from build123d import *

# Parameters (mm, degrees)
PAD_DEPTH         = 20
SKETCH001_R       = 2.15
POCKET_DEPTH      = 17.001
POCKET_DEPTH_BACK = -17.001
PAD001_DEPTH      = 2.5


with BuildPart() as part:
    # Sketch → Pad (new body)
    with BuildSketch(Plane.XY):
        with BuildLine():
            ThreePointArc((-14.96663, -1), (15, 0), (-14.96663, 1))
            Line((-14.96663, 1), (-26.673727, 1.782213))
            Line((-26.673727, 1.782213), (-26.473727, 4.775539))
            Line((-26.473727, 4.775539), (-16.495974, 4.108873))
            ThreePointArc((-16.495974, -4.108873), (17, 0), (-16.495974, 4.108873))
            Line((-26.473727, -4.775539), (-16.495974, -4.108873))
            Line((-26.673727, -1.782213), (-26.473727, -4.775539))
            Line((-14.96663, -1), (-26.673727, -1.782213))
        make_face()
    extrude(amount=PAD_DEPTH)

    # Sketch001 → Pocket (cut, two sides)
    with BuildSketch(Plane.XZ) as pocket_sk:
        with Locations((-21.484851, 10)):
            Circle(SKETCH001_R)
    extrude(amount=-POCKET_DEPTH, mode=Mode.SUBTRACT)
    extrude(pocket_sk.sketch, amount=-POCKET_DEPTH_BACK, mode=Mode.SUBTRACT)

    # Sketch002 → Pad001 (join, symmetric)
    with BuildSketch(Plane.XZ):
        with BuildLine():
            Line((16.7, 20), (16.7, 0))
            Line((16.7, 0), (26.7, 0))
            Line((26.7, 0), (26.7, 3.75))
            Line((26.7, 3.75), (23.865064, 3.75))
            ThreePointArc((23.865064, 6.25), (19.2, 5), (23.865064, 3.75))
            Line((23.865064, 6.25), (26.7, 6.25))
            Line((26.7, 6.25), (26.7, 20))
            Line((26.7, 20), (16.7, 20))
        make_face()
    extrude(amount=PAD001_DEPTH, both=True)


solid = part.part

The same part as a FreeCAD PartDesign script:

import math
import FreeCAD as App
import Part
import Sketcher
Q = App.Units.Quantity

doc = App.newDocument("Part")
body = doc.addObject("PartDesign::Body", "Body")

# Sketch on XY plane
sketch1 = body.newObject("Sketcher::SketchObject", "Sketch")
sketch1.AttachmentSupport = (doc.getObject("XY_Plane"), [""])
sketch1.MapMode = "FlatFace"
sketch1.addGeometry([
    Part.ArcOfCircle(Part.Circle(App.Vector(0, 0, 0), App.Vector(0, 0, 1), 15), math.radians(-176), math.radians(176)),  # 0
    Part.LineSegment(App.Vector(-15, -1, 0), App.Vector(-26.7, -1.8, 0)),  # 1
    Part.LineSegment(App.Vector(-26.7, -1.8, 0), App.Vector(-26.5, -4.8, 0)),  # 2
    Part.LineSegment(App.Vector(-26.5, -4.8, 0), App.Vector(-16.5, -4.1, 0)),  # 3
    Part.ArcOfCircle(Part.Circle(App.Vector(0, 0, 0), App.Vector(0, 0, 1), 17), math.radians(-166), math.radians(166)),  # 4
    Part.LineSegment(App.Vector(-16.5, 4.1, 0), App.Vector(-26.5, 4.8, 0)),  # 5
    Part.LineSegment(App.Vector(-26.5, 4.8, 0), App.Vector(-26.7, 1.8, 0)),  # 6
    Part.LineSegment(App.Vector(-26.7, 1.8, 0), App.Vector(-15, 1, 0)),  # 7
], False)
sketch1.addConstraint([
    Sketcher.Constraint("Coincident", 0, 1, 1, 1),
    Sketcher.Constraint("Coincident", 1, 2, 2, 1),
    Sketcher.Constraint("Coincident", 2, 2, 3, 1),
    Sketcher.Constraint("Coincident", 3, 2, 4, 1),
    Sketcher.Constraint("Coincident", 4, 2, 5, 1),
    Sketcher.Constraint("Coincident", 5, 2, 6, 1),
    Sketcher.Constraint("Coincident", 6, 2, 7, 1),
    Sketcher.Constraint("Coincident", 7, 2, 0, 2),
    Sketcher.Constraint("Coincident", 0, 3, -1, 1),
    Sketcher.Constraint("Coincident", 4, 3, -1, 1),
    Sketcher.Constraint("Symmetric", 2, 2, 5, 2, -1),
    Sketcher.Constraint("Symmetric", 1, 2, 6, 2, -1),
    Sketcher.Constraint("Perpendicular", 1, 2),
    Sketcher.Constraint("Perpendicular", 2, 3),
    Sketcher.Constraint("Perpendicular", 5, 6),
    Sketcher.Constraint("Perpendicular", 6, 7),
    Sketcher.Constraint("Radius", 0, Q("15 mm")),
    Sketcher.Constraint("Radius", 4, Q("17 mm")),
    Sketcher.Constraint("Distance", 2, Q("3 mm")),
    Sketcher.Constraint("Distance", 3, Q("10 mm")),
    Sketcher.Constraint("DistanceY", 0, 1, -1, 1, Q("1 mm")),
    Sketcher.Constraint("DistanceX", 1, 2, 2, 2, Q("0.2 mm")),
])
pad1 = body.newObject("PartDesign::Pad", "Pad")
pad1.Profile = sketch1
pad1.Length = 20

# Sketch on XZ plane
sketch2 = body.newObject("Sketcher::SketchObject", "Sketch001")
sketch2.AttachmentSupport = (doc.getObject("XZ_Plane"), [""])
sketch2.MapMode = "FlatFace"
sketch2.addGeometry(Part.Circle(App.Vector(-21.5, 10, 0), App.Vector(0, 0, 1), 2.1), False)
sketch2.addConstraint([
    Sketcher.Constraint("Diameter", 0, Q("4.3 mm")),
    Sketcher.Constraint("DistanceY", -1, 1, 0, 3, Q("10 mm")),
    Sketcher.Constraint("DistanceX", 0, 3, -1, 1, Q("21.484851 mm")),
])
pocket1 = body.newObject("PartDesign::Pocket", "Pocket")
pocket1.Profile = sketch2
pocket1.Type = "ThroughAll"
pocket1.Midplane = True

# Sketch on XZ plane
sketch3 = body.newObject("Sketcher::SketchObject", "Sketch002")
sketch3.AttachmentSupport = (doc.getObject("XZ_Plane"), [""])
sketch3.MapMode = "FlatFace"
sketch3.addGeometry([
    Part.LineSegment(App.Vector(16.7, 20, 0), App.Vector(16.7, 0, 0)),  # 0
    Part.LineSegment(App.Vector(16.7, 0, 0), App.Vector(26.7, 0, 0)),  # 1
    Part.LineSegment(App.Vector(26.7, 0, 0), App.Vector(26.7, 3.8, 0)),  # 2
    Part.LineSegment(App.Vector(26.7, 3.8, 0), App.Vector(23.9, 3.8, 0)),  # 3
    Part.ArcOfCircle(Part.Circle(App.Vector(21.7, 5, 0), App.Vector(0, 0, 1), 2.5), math.radians(30), math.radians(330)),  # 4
    Part.LineSegment(App.Vector(23.9, 6.2, 0), App.Vector(26.7, 6.2, 0)),  # 5
    Part.LineSegment(App.Vector(26.7, 6.2, 0), App.Vector(26.7, 20, 0)),  # 6
    Part.LineSegment(App.Vector(26.7, 20, 0), App.Vector(16.7, 20, 0)),  # 7
], False)
sketch3.addConstraint([
    Sketcher.Constraint("Coincident", 0, 2, 1, 1),
    Sketcher.Constraint("Coincident", 1, 2, 2, 1),
    Sketcher.Constraint("Coincident", 2, 2, 3, 1),
    Sketcher.Constraint("Coincident", 3, 2, 4, 2),
    Sketcher.Constraint("Coincident", 4, 1, 5, 1),
    Sketcher.Constraint("Coincident", 5, 2, 6, 1),
    Sketcher.Constraint("Coincident", 6, 2, 7, 1),
    Sketcher.Constraint("Coincident", 7, 2, 0, 1),
    Sketcher.Constraint("Vertical", 0),
    Sketcher.Constraint("Horizontal", 1),
    Sketcher.Constraint("Vertical", 2),
    Sketcher.Constraint("Horizontal", 3),
    Sketcher.Constraint("Horizontal", 5),
    Sketcher.Constraint("Vertical", 6),
    Sketcher.Constraint("Horizontal", 7),
    Sketcher.Constraint("PointOnObject", 0, 2, -1),
    Sketcher.Constraint("Vertical", 3, 2, 4, 1),
    Sketcher.Constraint("Vertical", 2, 2, 5, 2),
    Sketcher.Constraint("Radius", 4, Q("2.5 mm")),
    Sketcher.Constraint("DistanceX", 1, 1, 1, 2, Q("10 mm")),
    Sketcher.Constraint("DistanceY", 0, 2, 0, 1, Q("20 mm")),
    Sketcher.Constraint("DistanceY", -1, 1, 4, 3, Q("5 mm")),
    Sketcher.Constraint("DistanceX", 0, 2, 4, 3, Q("5 mm")),
    Sketcher.Constraint("DistanceY", 2, 1, 2, 2, Q("3.75 mm")),
    Sketcher.Constraint("DistanceX", -1, 1, 4, 3, Q("21.7 mm")),
])
pad2 = body.newObject("PartDesign::Pad", "Pad001")
pad2.Profile = sketch3
pad2.Length = 5
pad2.Midplane = True

doc.recompute()
